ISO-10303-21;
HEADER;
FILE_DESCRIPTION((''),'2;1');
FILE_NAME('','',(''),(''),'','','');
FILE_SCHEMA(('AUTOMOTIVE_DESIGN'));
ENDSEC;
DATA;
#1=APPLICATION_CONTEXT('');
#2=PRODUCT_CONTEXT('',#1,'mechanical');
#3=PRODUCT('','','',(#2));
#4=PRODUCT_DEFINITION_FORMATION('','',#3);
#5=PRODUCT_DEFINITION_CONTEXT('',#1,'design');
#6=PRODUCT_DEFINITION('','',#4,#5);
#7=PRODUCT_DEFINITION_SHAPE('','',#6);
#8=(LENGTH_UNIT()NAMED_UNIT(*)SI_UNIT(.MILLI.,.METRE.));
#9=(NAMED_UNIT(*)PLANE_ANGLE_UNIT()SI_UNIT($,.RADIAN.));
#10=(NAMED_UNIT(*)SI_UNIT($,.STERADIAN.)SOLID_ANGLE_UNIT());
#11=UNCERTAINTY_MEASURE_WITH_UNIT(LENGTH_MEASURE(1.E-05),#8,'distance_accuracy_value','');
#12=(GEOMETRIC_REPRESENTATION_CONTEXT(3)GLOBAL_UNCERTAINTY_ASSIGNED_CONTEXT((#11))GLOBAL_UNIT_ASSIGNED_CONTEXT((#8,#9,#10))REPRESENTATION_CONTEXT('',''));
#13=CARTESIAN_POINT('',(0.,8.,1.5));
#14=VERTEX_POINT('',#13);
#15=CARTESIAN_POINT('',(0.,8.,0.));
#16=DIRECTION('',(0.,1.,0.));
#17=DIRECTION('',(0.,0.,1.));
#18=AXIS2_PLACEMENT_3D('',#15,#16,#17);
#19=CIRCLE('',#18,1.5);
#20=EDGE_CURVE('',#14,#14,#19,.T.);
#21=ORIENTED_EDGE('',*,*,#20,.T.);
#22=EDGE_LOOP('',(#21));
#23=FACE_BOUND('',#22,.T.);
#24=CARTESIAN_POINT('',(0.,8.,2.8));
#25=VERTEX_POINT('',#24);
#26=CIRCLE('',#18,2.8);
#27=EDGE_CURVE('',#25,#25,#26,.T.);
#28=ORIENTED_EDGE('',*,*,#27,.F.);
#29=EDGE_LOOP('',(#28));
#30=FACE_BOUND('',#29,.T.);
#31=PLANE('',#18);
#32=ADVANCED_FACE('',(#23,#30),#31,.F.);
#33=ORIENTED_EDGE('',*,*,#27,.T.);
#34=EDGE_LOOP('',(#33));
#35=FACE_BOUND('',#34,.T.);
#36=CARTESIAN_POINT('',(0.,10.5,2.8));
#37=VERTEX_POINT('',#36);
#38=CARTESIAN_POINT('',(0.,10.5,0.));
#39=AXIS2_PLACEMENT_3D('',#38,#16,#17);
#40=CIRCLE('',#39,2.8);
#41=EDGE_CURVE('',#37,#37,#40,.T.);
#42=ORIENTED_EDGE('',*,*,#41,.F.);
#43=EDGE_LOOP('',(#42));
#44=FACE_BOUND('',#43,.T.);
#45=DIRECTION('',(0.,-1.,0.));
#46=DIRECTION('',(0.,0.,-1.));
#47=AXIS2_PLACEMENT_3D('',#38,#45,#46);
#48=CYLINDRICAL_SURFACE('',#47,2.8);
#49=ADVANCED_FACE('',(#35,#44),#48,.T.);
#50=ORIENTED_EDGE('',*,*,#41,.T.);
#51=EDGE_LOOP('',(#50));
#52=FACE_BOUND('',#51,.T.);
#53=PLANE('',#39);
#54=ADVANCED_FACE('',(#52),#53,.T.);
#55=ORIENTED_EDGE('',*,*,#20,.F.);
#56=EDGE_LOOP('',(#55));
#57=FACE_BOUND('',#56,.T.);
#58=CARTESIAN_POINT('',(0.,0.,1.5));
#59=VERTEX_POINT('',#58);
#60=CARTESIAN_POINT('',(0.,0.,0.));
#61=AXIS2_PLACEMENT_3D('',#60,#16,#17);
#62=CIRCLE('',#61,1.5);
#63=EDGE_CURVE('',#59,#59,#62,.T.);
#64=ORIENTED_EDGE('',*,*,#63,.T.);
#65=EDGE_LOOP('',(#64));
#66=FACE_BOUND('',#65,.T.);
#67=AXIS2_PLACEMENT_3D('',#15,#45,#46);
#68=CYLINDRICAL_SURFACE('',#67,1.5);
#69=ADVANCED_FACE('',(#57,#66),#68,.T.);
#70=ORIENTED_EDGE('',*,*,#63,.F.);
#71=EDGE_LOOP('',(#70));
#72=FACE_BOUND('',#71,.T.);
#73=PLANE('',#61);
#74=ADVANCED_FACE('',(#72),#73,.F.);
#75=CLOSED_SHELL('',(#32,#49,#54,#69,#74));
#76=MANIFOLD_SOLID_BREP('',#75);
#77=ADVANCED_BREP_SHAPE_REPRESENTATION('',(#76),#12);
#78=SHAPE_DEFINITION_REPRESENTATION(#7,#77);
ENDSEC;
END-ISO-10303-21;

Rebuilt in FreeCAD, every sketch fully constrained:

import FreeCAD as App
import Part
import Sketcher

V = App.Vector
Q = App.Units.Quantity

doc = App.newDocument("Part")
params = doc.addObject("Spreadsheet::Sheet", "Params")
for row, (alias, value) in enumerate([
    ("sketch1_diameter", "3 mm"),
    ("pad1_length", "8 mm"),
    ("sketch2_diameter", "5.6 mm"),
    ("pad2_length", "2.5 mm"),
], start=1):
    params.set(f"A{row}", alias)
    params.set(f"B{row}", "=" + value)
    params.setAlias(f"B{row}", alias)

body = doc.addObject("PartDesign::Body", "Body")

# Sketch on XZ plane
sketch1 = doc.addObject("Sketcher::SketchObject", "Sketch")
body.addObject(sketch1)
sketch1.AttachmentSupport = (doc.XZ_Plane, [""])
sketch1.MapMode = "FlatFace"
sketch1.addGeometry(Part.Circle(V(0, 0, 0), V(0, 0, 1), 1.5), False)
sketch1.addConstraint([
    Sketcher.Constraint("Coincident", 0, 3, -1, 1),
    Sketcher.Constraint("Diameter", 0, Q("3 mm")),
])
sketch1.setExpression("Constraints[1]", "Params.sketch1_diameter")
pad1 = doc.addObject("PartDesign::Pad", "Pad")
body.addObject(pad1)
pad1.Profile = sketch1
pad1.setExpression("Length", "Params.pad1_length")
pad1.Reversed = True

# Sketch on XZ plane
sketch2 = doc.addObject("Sketcher::SketchObject", "Sketch001")
body.addObject(sketch2)
sketch2.AttachmentSupport = (doc.XZ_Plane, [""])
sketch2.MapMode = "FlatFace"
sketch2.AttachmentOffset = App.Placement(V(0, 0, -8), App.Rotation())
sketch2.addGeometry(Part.Circle(V(0, 0, 0), V(0, 0, 1), 2.8), False)
sketch2.addConstraint([
    Sketcher.Constraint("Coincident", 0, 3, -1, 1),
    Sketcher.Constraint("Diameter", 0, Q("5.6 mm")),
])
sketch2.setExpression("Constraints[1]", "Params.sketch2_diameter")
pad2 = doc.addObject("PartDesign::Pad", "Pad001")
body.addObject(pad2)
pad2.Profile = sketch2
pad2.setExpression("Length", "Params.pad2_length")
pad2.Reversed = True

doc.recompute()
